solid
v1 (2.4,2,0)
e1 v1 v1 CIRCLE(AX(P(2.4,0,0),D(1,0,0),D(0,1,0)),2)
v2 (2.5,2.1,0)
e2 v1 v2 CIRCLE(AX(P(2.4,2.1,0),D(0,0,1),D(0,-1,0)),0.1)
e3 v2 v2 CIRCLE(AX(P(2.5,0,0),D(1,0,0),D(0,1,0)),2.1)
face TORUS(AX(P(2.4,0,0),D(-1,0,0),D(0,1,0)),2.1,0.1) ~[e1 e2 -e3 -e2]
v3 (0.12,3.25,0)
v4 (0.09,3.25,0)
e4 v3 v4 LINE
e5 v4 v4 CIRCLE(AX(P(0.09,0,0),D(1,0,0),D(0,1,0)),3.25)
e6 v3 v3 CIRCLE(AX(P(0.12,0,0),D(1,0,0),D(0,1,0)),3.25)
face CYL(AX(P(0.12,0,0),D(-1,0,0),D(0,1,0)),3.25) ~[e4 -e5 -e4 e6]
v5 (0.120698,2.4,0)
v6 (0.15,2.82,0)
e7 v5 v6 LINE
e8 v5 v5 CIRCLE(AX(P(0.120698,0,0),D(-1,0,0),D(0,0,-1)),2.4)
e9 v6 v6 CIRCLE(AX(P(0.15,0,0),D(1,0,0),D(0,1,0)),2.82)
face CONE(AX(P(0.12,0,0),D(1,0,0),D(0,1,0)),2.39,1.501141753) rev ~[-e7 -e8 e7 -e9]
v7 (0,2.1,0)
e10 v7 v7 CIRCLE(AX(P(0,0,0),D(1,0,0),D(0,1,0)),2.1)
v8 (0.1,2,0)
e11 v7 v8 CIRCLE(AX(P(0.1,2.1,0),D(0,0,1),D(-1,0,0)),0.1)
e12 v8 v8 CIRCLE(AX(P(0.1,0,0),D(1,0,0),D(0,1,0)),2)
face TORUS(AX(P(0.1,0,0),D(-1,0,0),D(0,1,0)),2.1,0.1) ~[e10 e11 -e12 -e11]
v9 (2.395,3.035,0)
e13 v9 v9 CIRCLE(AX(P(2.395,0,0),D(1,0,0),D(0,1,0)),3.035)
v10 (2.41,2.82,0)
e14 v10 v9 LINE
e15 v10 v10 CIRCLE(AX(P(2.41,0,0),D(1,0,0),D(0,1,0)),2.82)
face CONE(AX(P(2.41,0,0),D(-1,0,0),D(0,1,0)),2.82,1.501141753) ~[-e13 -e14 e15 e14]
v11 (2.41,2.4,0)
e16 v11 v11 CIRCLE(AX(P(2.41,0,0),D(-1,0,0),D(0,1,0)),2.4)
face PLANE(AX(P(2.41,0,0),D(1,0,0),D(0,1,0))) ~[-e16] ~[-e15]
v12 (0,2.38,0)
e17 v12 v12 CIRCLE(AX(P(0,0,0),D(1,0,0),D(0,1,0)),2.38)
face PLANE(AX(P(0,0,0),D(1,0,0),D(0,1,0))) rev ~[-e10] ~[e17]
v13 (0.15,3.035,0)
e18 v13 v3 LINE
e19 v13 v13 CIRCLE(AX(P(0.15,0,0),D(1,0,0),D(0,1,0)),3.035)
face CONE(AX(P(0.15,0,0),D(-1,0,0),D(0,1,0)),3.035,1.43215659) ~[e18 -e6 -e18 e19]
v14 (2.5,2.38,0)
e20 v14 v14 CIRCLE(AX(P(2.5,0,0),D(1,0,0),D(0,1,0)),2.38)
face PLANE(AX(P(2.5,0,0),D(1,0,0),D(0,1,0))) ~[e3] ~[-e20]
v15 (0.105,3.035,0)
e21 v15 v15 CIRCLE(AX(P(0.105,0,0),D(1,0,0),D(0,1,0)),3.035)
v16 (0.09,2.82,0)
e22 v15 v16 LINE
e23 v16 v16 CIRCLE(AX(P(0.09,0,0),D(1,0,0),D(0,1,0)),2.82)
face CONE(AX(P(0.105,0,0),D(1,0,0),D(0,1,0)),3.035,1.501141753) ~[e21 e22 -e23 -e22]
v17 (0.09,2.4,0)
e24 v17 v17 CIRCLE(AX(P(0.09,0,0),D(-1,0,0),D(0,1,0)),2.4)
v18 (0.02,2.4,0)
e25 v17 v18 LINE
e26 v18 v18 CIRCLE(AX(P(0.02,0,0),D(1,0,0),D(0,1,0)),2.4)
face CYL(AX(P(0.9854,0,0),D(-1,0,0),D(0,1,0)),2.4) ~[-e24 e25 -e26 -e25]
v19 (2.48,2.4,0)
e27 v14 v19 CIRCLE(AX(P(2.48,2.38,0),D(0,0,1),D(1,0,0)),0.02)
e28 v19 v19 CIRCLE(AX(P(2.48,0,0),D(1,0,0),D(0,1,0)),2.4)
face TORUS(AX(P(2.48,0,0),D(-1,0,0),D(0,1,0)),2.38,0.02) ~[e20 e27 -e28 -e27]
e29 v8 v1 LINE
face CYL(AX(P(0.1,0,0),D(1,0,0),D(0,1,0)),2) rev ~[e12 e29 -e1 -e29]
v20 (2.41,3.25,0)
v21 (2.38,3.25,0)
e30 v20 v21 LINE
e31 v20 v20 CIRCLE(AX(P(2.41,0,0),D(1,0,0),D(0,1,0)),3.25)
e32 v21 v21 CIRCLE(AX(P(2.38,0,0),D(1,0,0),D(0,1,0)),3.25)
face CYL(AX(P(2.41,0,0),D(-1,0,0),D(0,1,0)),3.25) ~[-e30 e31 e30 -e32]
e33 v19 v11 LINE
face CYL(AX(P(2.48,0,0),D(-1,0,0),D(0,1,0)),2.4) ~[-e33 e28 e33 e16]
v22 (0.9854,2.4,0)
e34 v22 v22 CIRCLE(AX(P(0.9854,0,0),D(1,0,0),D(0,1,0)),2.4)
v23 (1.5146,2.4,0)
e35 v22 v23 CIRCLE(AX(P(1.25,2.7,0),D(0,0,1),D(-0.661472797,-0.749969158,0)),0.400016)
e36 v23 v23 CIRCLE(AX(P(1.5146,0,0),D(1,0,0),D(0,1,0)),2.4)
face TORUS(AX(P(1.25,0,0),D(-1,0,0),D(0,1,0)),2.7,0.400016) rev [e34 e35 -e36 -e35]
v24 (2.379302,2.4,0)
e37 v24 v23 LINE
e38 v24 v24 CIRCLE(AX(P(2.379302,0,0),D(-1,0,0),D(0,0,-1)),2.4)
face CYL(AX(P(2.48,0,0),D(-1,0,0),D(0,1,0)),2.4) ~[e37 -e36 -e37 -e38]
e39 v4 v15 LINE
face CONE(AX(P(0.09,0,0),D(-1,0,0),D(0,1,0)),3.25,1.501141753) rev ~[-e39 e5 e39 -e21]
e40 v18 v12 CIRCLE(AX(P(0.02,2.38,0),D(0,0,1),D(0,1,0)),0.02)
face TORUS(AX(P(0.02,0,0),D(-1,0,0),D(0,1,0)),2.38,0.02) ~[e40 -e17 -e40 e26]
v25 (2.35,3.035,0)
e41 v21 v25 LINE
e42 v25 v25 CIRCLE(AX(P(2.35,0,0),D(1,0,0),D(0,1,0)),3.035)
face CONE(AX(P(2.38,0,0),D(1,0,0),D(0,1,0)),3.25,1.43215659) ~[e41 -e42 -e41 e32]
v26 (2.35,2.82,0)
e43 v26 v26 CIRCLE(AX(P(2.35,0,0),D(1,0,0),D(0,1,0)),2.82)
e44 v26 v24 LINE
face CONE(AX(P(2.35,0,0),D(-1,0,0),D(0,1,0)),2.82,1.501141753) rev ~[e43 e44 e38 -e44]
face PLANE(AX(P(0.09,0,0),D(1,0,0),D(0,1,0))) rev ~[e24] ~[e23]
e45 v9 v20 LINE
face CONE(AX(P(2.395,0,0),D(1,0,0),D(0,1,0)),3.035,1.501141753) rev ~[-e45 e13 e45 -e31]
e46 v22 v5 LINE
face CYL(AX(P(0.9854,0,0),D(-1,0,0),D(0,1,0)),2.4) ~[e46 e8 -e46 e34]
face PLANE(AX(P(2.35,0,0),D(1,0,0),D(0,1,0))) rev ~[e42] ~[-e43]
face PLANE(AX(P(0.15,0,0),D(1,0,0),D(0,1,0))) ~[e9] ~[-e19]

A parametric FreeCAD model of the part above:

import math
import FreeCAD as App
import Part
import Sketcher
from FreeCAD import Vector
Q = App.Units.Quantity

doc = App.newDocument("Part")
body = doc.addObject("PartDesign::Body", "Body")

# Sketch on XY plane
sketch1 = body.newObject("Sketcher::SketchObject", "Sketch")
sketch1.AttachmentSupport = (doc.getObject("XY_Plane"), [""])
sketch1.MapMode = "FlatFace"
sketch1.addGeometry([
    Part.ArcOfCircle(Part.Circle(Vector(0.02, 2.38, 0), Vector(0, 0, 1), 0.02), math.radians(90), math.radians(180)),  # 0
    Part.LineSegment(Vector(0, 2.38, 0), Vector(0, 2.1, 0)),  # 1
    Part.ArcOfCircle(Part.Circle(Vector(0.1, 2.1, 0), Vector(0, 0, 1), 0.1), math.radians(180), math.radians(270)),  # 2
    Part.LineSegment(Vector(0.1, 2, 0), Vector(2.4, 2, 0)),  # 3
    Part.ArcOfCircle(Part.Circle(Vector(2.4, 2.1, 0), Vector(0, 0, 1), 0.1), math.radians(-90), math.radians(0)),  # 4
    Part.LineSegment(Vector(2.5, 2.1, 0), Vector(2.5, 2.38, 0)),  # 5
    Part.ArcOfCircle(Part.Circle(Vector(2.48, 2.38, 0), Vector(0, 0, 1), 0.02), math.radians(0), math.radians(90)),  # 6
    Part.LineSegment(Vector(2.48, 2.4, 0), Vector(1.515, 2.4, 0)),  # 7
    Part.ArcOfCircle(Part.Circle(Vector(1.25, 2.7, 0), Vector(0, 0, 1), 0.4), math.radians(-131), math.radians(-49)),  # 8
    Part.LineSegment(Vector(0.985, 2.4, 0), Vector(0.02, 2.4, 0)),  # 9
], False)
sketch1.addConstraint([
    Sketcher.Constraint("Tangent", 0, 2, 1, 1),
    Sketcher.Constraint("Tangent", 1, 2, 2, 1),
    Sketcher.Constraint("Tangent", 2, 2, 3, 1),
    Sketcher.Constraint("Tangent", 3, 2, 4, 1),
    Sketcher.Constraint("Tangent", 4, 2, 5, 1),
    Sketcher.Constraint("Tangent", 5, 2, 6, 1),
    Sketcher.Constraint("Tangent", 6, 2, 7, 1),
    Sketcher.Constraint("Coincident", 7, 2, 8, 2),
    Sketcher.Constraint("Coincident", 8, 1, 9, 1),
    Sketcher.Constraint("Tangent", 9, 2, 0, 1),
    Sketcher.Constraint("Vertical", 1),
    Sketcher.Constraint("Horizontal", 3),
    Sketcher.Constraint("Vertical", 5),
    Sketcher.Constraint("Horizontal", 7),
    Sketcher.Constraint("Horizontal", 9),
    Sketcher.Constraint("Equal", 2, 4),
    Sketcher.Constraint("Equal", 0, 6),
    Sketcher.Constraint("PointOnObject", 0, 2, -2),
    Sketcher.Constraint("Horizontal", 0, 3, 6, 3),
    Sketcher.Constraint("Equal", 7, 9),
    Sketcher.Constraint("Radius", 2, Q("0.1 mm")),
    Sketcher.Constraint("Radius", 8, Q("0.4 mm")),
    Sketcher.Constraint("Radius", 0, Q("0.02 mm")),
    Sketcher.Constraint("DistanceX", 3, 1, 3, 2, Q("2.3 mm")),
    Sketcher.Constraint("DistanceY", -1, 1, 2, 2, Q("2 mm")),
    Sketcher.Constraint("DistanceY", 1, 2, 1, 1, Q("0.28 mm")),
    Sketcher.Constraint("DistanceY", -1, 1, 8, 3, Q("2.7 mm")),
])
revolution = body.newObject("PartDesign::Revolution", "Revolution")
revolution.Profile = sketch1
revolution.ReferenceAxis = (sketch1, ["H_Axis"])
revolution.Angle = 360

# Sketch on XY plane
sketch2 = body.newObject("Sketcher::SketchObject", "Sketch001")
sketch2.AttachmentSupport = (doc.getObject("XY_Plane"), [""])
sketch2.MapMode = "FlatFace"
sketch2.addGeometry([
    Part.LineSegment(Vector(0.12, 3.25, 0), Vector(0.09, 3.25, 0)),  # 0
    Part.LineSegment(Vector(0.09, 3.25, 0), Vector(0.105, 3.035, 0)),  # 1
    Part.LineSegment(Vector(0.105, 3.035, 0), Vector(0.09, 2.82, 0)),  # 2
    Part.LineSegment(Vector(0.09, 2.82, 0), Vector(0.09, 2.39, 0)),  # 3
    Part.LineSegment(Vector(0.09, 2.39, 0), Vector(0.12, 2.39, 0)),  # 4
    Part.LineSegment(Vector(0.12, 2.39, 0), Vector(0.15, 2.82, 0)),  # 5
    Part.LineSegment(Vector(0.15, 2.82, 0), Vector(0.15, 3.035, 0)),  # 6
    Part.LineSegment(Vector(0.15, 3.035, 0), Vector(0.12, 3.25, 0)),  # 7
], False)
sketch2.addConstraint([
    Sketcher.Constraint("Coincident", 0, 2, 1, 1),
    Sketcher.Constraint("Coincident", 1, 2, 2, 1),
    Sketcher.Constraint("Coincident", 2, 2, 3, 1),
    Sketcher.Constraint("Coincident", 3, 2, 4, 1),
    Sketcher.Constraint("Coincident", 4, 2, 5, 1),
    Sketcher.Constraint("Coincident", 5, 2, 6, 1),
    Sketcher.Constraint("Coincident", 6, 2, 7, 1),
    Sketcher.Constraint("Coincident", 7, 2, 0, 1),
    Sketcher.Constraint("Horizontal", 0),
    Sketcher.Constraint("Vertical", 3),
    Sketcher.Constraint("Horizontal", 4),
    Sketcher.Constraint("Vertical", 6),
    Sketcher.Constraint("Parallel", 2, 5),
    Sketcher.Constraint("Horizontal", 2, 2, 5, 2),
    Sketcher.Constraint("Horizontal", 1, 2, 6, 2),
    Sketcher.Constraint("Vertical", 0, 2, 2, 2),
    Sketcher.Constraint("Vertical", 4, 2, 7, 2),
    Sketcher.Constraint("Equal", 1, 2),
    Sketcher.Constraint("DistanceX", 0, 2, 0, 1, Q("0.03 mm")),
    Sketcher.Constraint("DistanceY", 3, 2, 3, 1, Q("0.43 mm")),
    Sketcher.Constraint("Angle", 1, Q("-86.009 deg")),
    Sketcher.Constraint("DistanceY", 6, 1, 6, 2, Q("0.215 mm")),
    Sketcher.Constraint("DistanceX", -1, 1, 0, 2, Q("0.09 mm")),
    Sketcher.Constraint("DistanceY", -1, 1, 0, 2, Q("3.25 mm")),
])
revolution2 = body.newObject("PartDesign::Revolution", "Revolution001")
revolution2.Profile = sketch2
revolution2.ReferenceAxis = (sketch2, ["H_Axis"])
revolution2.Angle = 360

# Sketch on XY plane
sketch3 = body.newObject("Sketcher::SketchObject", "Sketch002")
sketch3.AttachmentSupport = (doc.getObject("XY_Plane"), [""])
sketch3.MapMode = "FlatFace"
sketch3.addGeometry([
    Part.LineSegment(Vector(2.38, 3.25, 0), Vector(2.35, 3.035, 0)),  # 0
    Part.LineSegment(Vector(2.35, 3.035, 0), Vector(2.35, 2.82, 0)),  # 1
    Part.LineSegment(Vector(2.35, 2.82, 0), Vector(2.38, 2.39, 0)),  # 2
    Part.LineSegment(Vector(2.38, 2.39, 0), Vector(2.41, 2.39, 0)),  # 3
    Part.LineSegment(Vector(2.41, 2.39, 0), Vector(2.41, 2.82, 0)),  # 4
    Part.LineSegment(Vector(2.41, 2.82, 0), Vector(2.395, 3.035, 0)),  # 5
    Part.LineSegment(Vector(2.395, 3.035, 0), Vector(2.41, 3.25, 0)),  # 6
    Part.LineSegment(Vector(2.41, 3.25, 0), Vector(2.38, 3.25, 0)),  # 7
], False)
sketch3.addConstraint([
    Sketcher.Constraint("Coincident", 0, 2, 1, 1),
    Sketcher.Constraint("Coincident", 1, 2, 2, 1),
    Sketcher.Constraint("Coincident", 2, 2, 3, 1),
    Sketcher.Constraint("Coincident", 3, 2, 4, 1),
    Sketcher.Constraint("Coincident", 4, 2, 5, 1),
    Sketcher.Constraint("Coincident", 5, 2, 6, 1),
    Sketcher.Constraint("Coincident", 6, 2, 7, 1),
    Sketcher.Constraint("Coincident", 7, 2, 0, 1),
    Sketcher.Constraint("Vertical", 1),
    Sketcher.Constraint("Horizontal", 3),
    Sketcher.Constraint("Vertical", 4),
    Sketcher.Constraint("Horizontal", 7),
    Sketcher.Constraint("Parallel", 2, 5),
    Sketcher.Constraint("Horizontal", 1, 2, 4, 2),
    Sketcher.Constraint("Horizontal", 0, 2, 5, 2),
    Sketcher.Constraint("Vertical", 4, 2, 6, 2),
    Sketcher.Constraint("Vertical", 2, 2, 7, 2),
    Sketcher.Constraint("Equal", 5, 6),
    Sketcher.Constraint("DistanceX", 3, 1, 3, 2, Q("0.03 mm")),
    Sketcher.Constraint("DistanceY", 4, 1, 4, 2, Q("0.43 mm")),
    Sketcher.Constraint("Angle", 2, Q("-86.009 deg")),
    Sketcher.Constraint("DistanceY", 1, 2, 1, 1, Q("0.215 mm")),
    Sketcher.Constraint("DistanceX", -1, 1, 0, 2, Q("2.35 mm")),
    Sketcher.Constraint("DistanceY", -1, 1, 1, 2, Q("2.82 mm")),
])
revolution3 = body.newObject("PartDesign::Revolution", "Revolution002")
revolution3.Profile = sketch3
revolution3.ReferenceAxis = (sketch3, ["H_Axis"])
revolution3.Angle = 360

doc.recompute()
